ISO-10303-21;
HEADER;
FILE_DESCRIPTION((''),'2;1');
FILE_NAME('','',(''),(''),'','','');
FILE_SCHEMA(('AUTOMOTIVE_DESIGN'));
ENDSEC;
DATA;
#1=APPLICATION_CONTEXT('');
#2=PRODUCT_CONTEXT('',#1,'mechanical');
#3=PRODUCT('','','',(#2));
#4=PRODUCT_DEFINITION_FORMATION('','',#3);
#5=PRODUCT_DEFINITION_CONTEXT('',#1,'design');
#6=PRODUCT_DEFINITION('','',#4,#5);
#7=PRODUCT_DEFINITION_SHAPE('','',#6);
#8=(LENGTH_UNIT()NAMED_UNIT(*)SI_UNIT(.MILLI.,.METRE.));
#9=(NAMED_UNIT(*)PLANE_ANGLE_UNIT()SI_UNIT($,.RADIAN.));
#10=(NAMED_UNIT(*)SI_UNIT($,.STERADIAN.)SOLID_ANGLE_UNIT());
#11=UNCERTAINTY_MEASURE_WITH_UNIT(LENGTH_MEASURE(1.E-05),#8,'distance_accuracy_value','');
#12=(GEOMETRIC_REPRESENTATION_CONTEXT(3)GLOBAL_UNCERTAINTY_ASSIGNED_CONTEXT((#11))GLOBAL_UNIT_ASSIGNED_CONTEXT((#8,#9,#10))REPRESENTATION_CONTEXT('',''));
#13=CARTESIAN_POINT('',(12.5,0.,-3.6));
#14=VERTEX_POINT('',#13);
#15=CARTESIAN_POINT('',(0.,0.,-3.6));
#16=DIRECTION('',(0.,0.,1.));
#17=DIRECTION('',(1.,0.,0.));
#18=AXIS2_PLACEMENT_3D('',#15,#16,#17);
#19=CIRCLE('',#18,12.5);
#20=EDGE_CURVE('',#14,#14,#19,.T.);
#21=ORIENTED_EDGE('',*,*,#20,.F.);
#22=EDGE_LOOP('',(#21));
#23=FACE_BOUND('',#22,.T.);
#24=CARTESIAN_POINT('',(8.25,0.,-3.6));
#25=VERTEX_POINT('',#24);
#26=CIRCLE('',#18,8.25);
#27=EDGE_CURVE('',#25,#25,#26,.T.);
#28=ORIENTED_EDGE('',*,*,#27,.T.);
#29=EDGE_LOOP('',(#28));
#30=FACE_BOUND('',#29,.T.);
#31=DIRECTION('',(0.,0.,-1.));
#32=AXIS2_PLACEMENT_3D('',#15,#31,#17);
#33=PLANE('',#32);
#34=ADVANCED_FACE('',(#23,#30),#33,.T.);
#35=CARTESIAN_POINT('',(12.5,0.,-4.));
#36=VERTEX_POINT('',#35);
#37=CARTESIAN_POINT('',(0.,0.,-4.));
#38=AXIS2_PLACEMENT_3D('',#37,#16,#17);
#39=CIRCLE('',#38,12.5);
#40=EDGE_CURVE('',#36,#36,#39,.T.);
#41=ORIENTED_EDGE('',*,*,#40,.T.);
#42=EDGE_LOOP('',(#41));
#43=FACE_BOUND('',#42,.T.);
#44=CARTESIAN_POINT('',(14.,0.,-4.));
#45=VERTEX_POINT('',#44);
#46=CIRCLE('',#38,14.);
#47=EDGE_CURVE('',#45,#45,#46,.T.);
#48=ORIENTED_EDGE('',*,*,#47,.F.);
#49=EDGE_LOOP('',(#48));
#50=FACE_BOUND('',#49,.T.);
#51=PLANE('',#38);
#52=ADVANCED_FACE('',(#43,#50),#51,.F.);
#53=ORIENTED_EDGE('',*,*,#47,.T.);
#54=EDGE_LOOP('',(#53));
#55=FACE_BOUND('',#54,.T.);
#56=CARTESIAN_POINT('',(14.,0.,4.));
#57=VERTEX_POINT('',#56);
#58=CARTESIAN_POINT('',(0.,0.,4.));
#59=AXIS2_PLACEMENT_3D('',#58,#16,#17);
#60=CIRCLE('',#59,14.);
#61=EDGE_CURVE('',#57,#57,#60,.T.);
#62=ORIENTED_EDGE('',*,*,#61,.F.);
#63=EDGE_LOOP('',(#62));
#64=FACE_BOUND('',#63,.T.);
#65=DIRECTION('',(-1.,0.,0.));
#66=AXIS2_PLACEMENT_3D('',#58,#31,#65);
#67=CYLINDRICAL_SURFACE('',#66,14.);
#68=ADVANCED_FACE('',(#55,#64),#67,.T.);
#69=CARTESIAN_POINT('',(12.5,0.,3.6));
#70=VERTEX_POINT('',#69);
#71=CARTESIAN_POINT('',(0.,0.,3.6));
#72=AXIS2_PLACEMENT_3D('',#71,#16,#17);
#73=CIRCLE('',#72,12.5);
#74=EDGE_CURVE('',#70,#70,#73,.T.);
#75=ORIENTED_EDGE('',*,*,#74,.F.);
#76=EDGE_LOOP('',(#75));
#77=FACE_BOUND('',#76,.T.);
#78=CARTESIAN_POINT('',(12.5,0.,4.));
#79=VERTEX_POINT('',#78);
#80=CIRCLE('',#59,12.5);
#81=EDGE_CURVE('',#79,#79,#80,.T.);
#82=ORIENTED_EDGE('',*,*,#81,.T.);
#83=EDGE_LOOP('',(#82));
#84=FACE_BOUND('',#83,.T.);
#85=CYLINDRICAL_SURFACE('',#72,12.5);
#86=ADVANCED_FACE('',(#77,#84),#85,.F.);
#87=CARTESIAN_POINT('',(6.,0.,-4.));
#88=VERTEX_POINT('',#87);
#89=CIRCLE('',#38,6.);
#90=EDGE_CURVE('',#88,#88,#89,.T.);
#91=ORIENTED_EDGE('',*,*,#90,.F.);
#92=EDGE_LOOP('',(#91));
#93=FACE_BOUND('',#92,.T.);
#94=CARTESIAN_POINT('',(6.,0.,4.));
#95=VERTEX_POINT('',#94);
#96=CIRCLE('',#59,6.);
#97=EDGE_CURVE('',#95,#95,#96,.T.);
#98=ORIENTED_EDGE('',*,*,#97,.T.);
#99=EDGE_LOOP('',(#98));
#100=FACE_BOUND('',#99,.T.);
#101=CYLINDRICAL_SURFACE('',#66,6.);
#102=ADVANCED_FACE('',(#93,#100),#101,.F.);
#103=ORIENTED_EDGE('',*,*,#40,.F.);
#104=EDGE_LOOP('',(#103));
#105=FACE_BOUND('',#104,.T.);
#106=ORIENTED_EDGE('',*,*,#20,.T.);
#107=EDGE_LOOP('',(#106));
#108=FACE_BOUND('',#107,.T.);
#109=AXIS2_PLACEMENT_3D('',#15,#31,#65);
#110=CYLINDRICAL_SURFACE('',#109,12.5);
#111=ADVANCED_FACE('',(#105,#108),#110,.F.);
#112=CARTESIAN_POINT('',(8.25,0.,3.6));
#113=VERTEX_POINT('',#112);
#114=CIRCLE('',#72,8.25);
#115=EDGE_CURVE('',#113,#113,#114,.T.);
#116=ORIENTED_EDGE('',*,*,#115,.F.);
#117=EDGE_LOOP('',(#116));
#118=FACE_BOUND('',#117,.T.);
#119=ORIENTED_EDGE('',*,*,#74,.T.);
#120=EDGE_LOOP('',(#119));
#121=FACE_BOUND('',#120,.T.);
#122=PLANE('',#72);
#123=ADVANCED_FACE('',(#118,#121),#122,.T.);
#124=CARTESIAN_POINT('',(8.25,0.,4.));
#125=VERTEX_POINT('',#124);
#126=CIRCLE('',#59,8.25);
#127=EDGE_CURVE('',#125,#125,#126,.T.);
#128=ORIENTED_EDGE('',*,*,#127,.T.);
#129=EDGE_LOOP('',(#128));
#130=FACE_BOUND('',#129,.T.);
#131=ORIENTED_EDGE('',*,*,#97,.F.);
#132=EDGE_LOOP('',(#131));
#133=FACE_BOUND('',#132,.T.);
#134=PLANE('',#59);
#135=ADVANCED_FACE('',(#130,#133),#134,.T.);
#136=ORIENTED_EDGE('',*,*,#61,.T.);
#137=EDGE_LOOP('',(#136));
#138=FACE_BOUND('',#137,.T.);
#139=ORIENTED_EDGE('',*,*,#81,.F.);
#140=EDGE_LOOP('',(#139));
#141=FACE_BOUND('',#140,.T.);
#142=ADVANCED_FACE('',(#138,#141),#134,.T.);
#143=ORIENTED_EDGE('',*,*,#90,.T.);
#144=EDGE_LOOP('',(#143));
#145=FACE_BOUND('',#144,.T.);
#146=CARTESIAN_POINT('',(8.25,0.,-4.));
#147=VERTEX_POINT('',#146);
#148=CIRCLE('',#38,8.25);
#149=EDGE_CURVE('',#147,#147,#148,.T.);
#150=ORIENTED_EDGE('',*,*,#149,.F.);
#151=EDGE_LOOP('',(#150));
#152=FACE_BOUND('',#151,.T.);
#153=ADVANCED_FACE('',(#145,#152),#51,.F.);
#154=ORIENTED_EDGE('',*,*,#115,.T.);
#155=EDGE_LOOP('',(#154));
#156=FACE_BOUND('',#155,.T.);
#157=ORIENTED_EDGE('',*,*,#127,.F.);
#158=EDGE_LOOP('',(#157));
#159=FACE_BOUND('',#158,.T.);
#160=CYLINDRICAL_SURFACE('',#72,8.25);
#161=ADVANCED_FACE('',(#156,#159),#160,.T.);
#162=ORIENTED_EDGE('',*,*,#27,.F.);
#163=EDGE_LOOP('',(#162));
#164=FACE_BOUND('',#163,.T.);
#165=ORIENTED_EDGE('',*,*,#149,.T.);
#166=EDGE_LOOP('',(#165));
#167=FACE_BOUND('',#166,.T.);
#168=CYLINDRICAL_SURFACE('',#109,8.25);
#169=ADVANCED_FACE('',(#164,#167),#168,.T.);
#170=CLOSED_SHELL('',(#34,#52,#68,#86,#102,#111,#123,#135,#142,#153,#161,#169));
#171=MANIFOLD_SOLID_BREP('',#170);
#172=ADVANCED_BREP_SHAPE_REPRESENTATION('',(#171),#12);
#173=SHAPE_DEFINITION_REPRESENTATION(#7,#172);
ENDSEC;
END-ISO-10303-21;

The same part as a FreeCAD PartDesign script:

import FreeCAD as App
import Part
import Sketcher
from FreeCAD import Vector
Q = App.Units.Quantity

doc = App.newDocument("Part")
body = doc.addObject("PartDesign::Body", "Body")

# Sketch on XY plane
sketch1 = body.newObject("Sketcher::SketchObject", "Sketch")
sketch1.AttachmentSupport = (doc.getObject("XY_Plane"), [""])
sketch1.MapMode = "FlatFace"
sketch1.addGeometry(Part.Circle(Vector(0, 0, 0), Vector(0, 0, 1), 14), False)
sketch1.addGeometry(Part.Circle(Vector(0, 0, 0), Vector(0, 0, 1), 6), False)
sketch1.addConstraint(Sketcher.Constraint("Coincident", 0, 3, -1, 1))
sketch1.addConstraint(Sketcher.Constraint("Coincident", 1, 3, -1, 1))
sketch1.addConstraint(Sketcher.Constraint("Diameter", 0, Q("28 mm")))
sketch1.addConstraint(Sketcher.Constraint("Diameter", 1, Q("12 mm")))
pad1 = body.newObject("PartDesign::Pad", "Pad")
pad1.Profile = sketch1
pad1.Length = 8
pad1.Midplane = True

# Sketch on XY plane
sketch2 = body.newObject("Sketcher::SketchObject", "Sketch001")
sketch2.AttachmentSupport = (doc.getObject("XY_Plane"), [""])
sketch2.MapMode = "FlatFace"
sketch2.AttachmentOffset = App.Placement(Vector(0, 0, 4), App.Rotation())
sketch2.addGeometry(Part.Circle(Vector(0, 0, 0), Vector(0, 0, 1), 12), False)
sketch2.addGeometry(Part.Circle(Vector(0, 0, 0), Vector(0, 0, 1), 8), False)
sketch2.addConstraint(Sketcher.Constraint("Coincident", 0, 3, -1, 1))
sketch2.addConstraint(Sketcher.Constraint("Coincident", 1, 3, -1, 1))
sketch2.addConstraint(Sketcher.Constraint("Diameter", 0, Q("25 mm")))
sketch2.addConstraint(Sketcher.Constraint("Diameter", 1, Q("16.5 mm")))
pocket1 = body.newObject("PartDesign::Pocket", "Pocket")
pocket1.Profile = sketch2
pocket1.Length = 0.4
doc.recompute()

mirrored = body.newObject("PartDesign::Mirrored", "Mirrored")
mirrored.Originals = [pocket1]
mirrored.MirrorPlane = (doc.getObject("XY_Plane"), [""])
body.Tip = mirrored

doc.recompute()
